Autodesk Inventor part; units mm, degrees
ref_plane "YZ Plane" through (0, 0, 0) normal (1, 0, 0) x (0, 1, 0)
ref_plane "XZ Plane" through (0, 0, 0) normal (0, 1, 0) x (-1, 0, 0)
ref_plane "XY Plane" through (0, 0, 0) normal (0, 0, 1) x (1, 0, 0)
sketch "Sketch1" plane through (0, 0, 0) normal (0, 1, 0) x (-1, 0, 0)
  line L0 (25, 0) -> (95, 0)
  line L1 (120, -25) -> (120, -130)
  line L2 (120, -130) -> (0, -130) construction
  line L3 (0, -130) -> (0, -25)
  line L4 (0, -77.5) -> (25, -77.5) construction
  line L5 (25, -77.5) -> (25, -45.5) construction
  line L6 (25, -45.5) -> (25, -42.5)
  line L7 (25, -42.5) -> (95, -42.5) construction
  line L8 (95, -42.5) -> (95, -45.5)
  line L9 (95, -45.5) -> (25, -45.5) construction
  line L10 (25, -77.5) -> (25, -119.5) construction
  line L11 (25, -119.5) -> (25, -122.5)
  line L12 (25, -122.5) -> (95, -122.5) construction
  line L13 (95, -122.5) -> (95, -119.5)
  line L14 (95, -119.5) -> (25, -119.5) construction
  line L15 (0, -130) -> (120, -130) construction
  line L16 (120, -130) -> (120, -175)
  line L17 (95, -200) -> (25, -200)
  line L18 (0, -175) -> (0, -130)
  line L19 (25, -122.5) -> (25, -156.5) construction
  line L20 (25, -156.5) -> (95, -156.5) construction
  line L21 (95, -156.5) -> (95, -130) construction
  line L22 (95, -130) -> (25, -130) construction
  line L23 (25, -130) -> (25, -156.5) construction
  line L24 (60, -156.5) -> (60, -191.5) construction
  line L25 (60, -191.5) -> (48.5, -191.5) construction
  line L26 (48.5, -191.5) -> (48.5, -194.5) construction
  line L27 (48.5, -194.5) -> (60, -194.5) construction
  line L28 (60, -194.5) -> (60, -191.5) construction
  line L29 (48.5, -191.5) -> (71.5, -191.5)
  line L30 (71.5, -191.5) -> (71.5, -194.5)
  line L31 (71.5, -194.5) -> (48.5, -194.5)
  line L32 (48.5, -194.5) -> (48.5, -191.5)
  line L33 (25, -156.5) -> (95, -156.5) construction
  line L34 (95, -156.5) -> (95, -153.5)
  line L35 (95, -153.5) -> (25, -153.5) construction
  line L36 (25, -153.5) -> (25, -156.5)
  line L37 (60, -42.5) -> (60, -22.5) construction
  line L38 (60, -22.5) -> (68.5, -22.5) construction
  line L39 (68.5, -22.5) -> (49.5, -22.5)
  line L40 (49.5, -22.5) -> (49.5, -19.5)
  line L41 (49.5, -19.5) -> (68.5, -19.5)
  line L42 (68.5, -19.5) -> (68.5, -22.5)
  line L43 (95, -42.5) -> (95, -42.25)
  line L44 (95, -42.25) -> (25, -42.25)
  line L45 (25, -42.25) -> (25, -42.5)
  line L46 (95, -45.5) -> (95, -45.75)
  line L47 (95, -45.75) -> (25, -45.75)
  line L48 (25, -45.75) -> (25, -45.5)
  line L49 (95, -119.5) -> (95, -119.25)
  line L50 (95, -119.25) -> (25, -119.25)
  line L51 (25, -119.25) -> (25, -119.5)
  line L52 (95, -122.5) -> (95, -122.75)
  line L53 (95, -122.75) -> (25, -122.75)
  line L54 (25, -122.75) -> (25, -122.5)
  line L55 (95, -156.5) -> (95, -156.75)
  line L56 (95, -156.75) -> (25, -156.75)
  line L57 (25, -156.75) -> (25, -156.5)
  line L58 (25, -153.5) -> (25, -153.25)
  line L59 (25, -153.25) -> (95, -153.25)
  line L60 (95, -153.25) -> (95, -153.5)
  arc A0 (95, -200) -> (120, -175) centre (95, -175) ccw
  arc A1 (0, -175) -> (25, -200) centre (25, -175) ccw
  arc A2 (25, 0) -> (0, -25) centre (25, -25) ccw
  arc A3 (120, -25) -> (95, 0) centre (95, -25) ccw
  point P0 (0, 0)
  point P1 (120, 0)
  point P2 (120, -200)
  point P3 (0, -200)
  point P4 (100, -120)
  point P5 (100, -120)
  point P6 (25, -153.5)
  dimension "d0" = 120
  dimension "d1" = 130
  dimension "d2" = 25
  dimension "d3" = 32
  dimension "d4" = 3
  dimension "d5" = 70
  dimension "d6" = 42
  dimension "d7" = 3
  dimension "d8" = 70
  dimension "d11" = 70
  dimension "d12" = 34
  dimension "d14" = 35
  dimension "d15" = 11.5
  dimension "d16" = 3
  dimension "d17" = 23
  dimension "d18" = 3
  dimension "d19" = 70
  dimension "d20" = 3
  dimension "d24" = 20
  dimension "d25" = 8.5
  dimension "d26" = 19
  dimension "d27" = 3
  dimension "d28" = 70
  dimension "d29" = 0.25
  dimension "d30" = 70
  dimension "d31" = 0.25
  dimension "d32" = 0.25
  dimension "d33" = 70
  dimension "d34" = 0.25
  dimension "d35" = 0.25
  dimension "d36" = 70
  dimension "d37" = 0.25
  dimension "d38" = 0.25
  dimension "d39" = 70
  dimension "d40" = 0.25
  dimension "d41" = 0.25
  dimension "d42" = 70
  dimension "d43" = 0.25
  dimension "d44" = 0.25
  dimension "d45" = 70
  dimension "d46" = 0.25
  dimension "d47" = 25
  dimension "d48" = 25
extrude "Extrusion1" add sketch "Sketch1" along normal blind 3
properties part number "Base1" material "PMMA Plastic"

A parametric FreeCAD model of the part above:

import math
import FreeCAD as App
import Part
import Sketcher

V = App.Vector


def add_polygon(sketch, points):
    """Adds a closed chain of lines whose ends are joined by coincident constraints."""
    first, n = sketch.GeometryCount, len(points)
    for a, b in zip(points, points[1:] + points[:1]):
        sketch.addGeometry(Part.LineSegment(App.Vector(*a, 0), App.Vector(*b, 0)), False)
    for i in range(n):
        sketch.addConstraint(Sketcher.Constraint("Coincident", first + i, 2, first + (i + 1) % n, 1))

doc = App.newDocument("Part")
body = doc.addObject("PartDesign::Body", "Body")

sketch1 = body.newObject("Sketcher::SketchObject", "Sketch")
sketch1.AttachmentSupport = (doc.getObject("XZ_Plane"), [""])
sketch1.MapMode = "FlatFace"
sketch1.addGeometry(Part.LineSegment(V(-95, 0, 0), V(-25, 0, 0)), False)
sketch1.addGeometry(Part.ArcOfCircle(Part.Circle(V(-25, -25, 0), V(0, 0, 1), 25), math.radians(0), math.radians(90)), False)
sketch1.addGeometry(Part.LineSegment(V(0, -25, 0), V(0, -175, 0)), False)
sketch1.addGeometry(Part.ArcOfCircle(Part.Circle(V(-25, -175, 0), V(0, 0, 1), 25), math.radians(-90), math.radians(0)), False)
sketch1.addGeometry(Part.LineSegment(V(-25, -200, 0), V(-95, -200, 0)), False)
sketch1.addGeometry(Part.ArcOfCircle(Part.Circle(V(-95, -175, 0), V(0, 0, 1), 25), math.radians(180), math.radians(270)), False)
sketch1.addGeometry(Part.LineSegment(V(-120, -175, 0), V(-120, -25, 0)), False)
sketch1.addGeometry(Part.ArcOfCircle(Part.Circle(V(-95, -25, 0), V(0, 0, 1), 25), math.radians(90), math.radians(180)), False)
add_polygon(sketch1, [(-48.5, -194.5), (-48.5, -191.5), (-71.5, -191.5), (-71.5, -194.5)])
add_polygon(sketch1, [(-95, -153.2), (-95, -156.8), (-25, -156.8), (-25, -153.2)])
add_polygon(sketch1, [(-25, -122.8), (-25, -119.2), (-95, -119.2), (-95, -122.8)])
add_polygon(sketch1, [(-68.5, -19.5), (-68.5, -22.5), (-49.5, -22.5), (-49.5, -19.5)])
add_polygon(sketch1, [(-25, -45.8), (-25, -42.2), (-95, -42.2), (-95, -45.8)])
sketch1.addConstraint([
    Sketcher.Constraint("Tangent", 0, 2, 1, 2),
    Sketcher.Constraint("Tangent", 1, 1, 2, 1),
    Sketcher.Constraint("Tangent", 2, 2, 3, 2),
    Sketcher.Constraint("Tangent", 3, 1, 4, 1),
    Sketcher.Constraint("Tangent", 4, 2, 5, 2),
    Sketcher.Constraint("Tangent", 5, 1, 6, 1),
    Sketcher.Constraint("Tangent", 6, 2, 7, 2),
    Sketcher.Constraint("Tangent", 7, 1, 0, 1),
    Sketcher.Constraint("Horizontal", 0),
    Sketcher.Constraint("Vertical", 2),
    Sketcher.Constraint("Horizontal", 4),
    Sketcher.Constraint("Vertical", 6),
    Sketcher.Constraint("Vertical", 8),
    Sketcher.Constraint("Horizontal", 9),
    Sketcher.Constraint("Vertical", 10),
    Sketcher.Constraint("Horizontal", 11),
    Sketcher.Constraint("Vertical", 12),
    Sketcher.Constraint("Horizontal", 13),
    Sketcher.Constraint("Vertical", 14),
    Sketcher.Constraint("Horizontal", 15),
    Sketcher.Constraint("Vertical", 16),
    Sketcher.Constraint("Horizontal", 17),
    Sketcher.Constraint("Vertical", 18),
    Sketcher.Constraint("Horizontal", 19),
    Sketcher.Constraint("Vertical", 20),
    Sketcher.Constraint("Horizontal", 21),
    Sketcher.Constraint("Vertical", 22),
    Sketcher.Constraint("Horizontal", 23),
    Sketcher.Constraint("Vertical", 24),
    Sketcher.Constraint("Horizontal", 25),
    Sketcher.Constraint("Vertical", 26),
    Sketcher.Constraint("Horizontal", 27),
    Sketcher.Constraint("Equal", 1, 3),
    Sketcher.Constraint("Equal", 3, 5),
    Sketcher.Constraint("Equal", 5, 7),
    Sketcher.Constraint("PointOnObject", 0, 2, -1),
    Sketcher.Constraint("PointOnObject", 1, 1, -2),
    Sketcher.Constraint("Vertical", 7, 1, 12, 2),
    Sketcher.Constraint("Vertical", 3, 1, 13, 2),
    Sketcher.Constraint("Vertical", 14, 2, 16, 2),
    Sketcher.Constraint("Vertical", 15, 2, 17, 2),
    Sketcher.Constraint("Vertical", 19, 2, 24, 2),
    Sketcher.Constraint("Vertical", 18, 2, 25, 2),
    Sketcher.Constraint("Equal", 14, 16),
    Sketcher.Constraint("Equal", 10, 20),
    Sketcher.Constraint("Equal", 18, 24),
    Sketcher.Constraint("Radius", 1, 25.0),
    Sketcher.Constraint("DistanceX", 0, 1, 0, 2, 70.0),
    Sketcher.Constraint("DistanceX", 9, 2, 9, 1, 23.0),
    Sketcher.Constraint("DistanceX", 21, 1, 21, 2, 19.0),
    Sketcher.Constraint("DistanceY", 8, 1, 8, 2, 3.0),
    Sketcher.Constraint("DistanceY", 14, 2, 16, 2, 34.0),
    Sketcher.Constraint("DistanceY", 3, 1, 8, 2, 8.5),
    Sketcher.Constraint("DistanceY", 2, 2, 2, 1, 150.0),
    Sketcher.Constraint("DistanceY", 12, 2, 12, 1, 3.5),
    Sketcher.Constraint("DistanceX", 8, 2, -1, 1, 48.5),
    Sketcher.Constraint("DistanceX", 20, 2, -1, 1, 68.5),
    Sketcher.Constraint("DistanceY", 20, 2, -1, 1, 22.5),
    Sketcher.Constraint("DistanceY", 12, 2, -1, 1, 156.75),
    Sketcher.Constraint("DistanceY", 24, 2, -1, 1, 42.25),
])
pad1 = body.newObject("PartDesign::Pad", "Pad")
pad1.Profile = sketch1
pad1.Length = 3
pad1.Reversed = True

doc.recompute()
